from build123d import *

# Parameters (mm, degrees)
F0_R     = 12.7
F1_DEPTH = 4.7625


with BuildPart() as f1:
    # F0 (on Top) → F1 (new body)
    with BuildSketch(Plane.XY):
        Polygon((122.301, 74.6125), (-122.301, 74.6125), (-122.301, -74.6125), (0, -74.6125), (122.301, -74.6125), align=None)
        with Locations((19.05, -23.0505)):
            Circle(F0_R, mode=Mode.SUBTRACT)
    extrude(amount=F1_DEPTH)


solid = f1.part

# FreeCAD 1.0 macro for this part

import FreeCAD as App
import Part
import Sketcher
from FreeCAD import Vector
Q = App.Units.Quantity

doc = App.newDocument("Part")
body = doc.addObject("PartDesign::Body", "Body")

# Sketch on XY plane
sketch1 = body.newObject("Sketcher::SketchObject", "Sketch")
sketch1.AttachmentSupport = (doc.getObject("XY_Plane"), [""])
sketch1.MapMode = "FlatFace"
sketch1.addGeometry([
    Part.LineSegment(Vector(122, 75, 0), Vector(-122, 75, 0)),  # 0
    Part.LineSegment(Vector(-122, 75, 0), Vector(-122, -75, 0)),  # 1
    Part.LineSegment(Vector(-122, -75, 0), Vector(122, -75, 0)),  # 2
    Part.LineSegment(Vector(122, -75, 0), Vector(122, 75, 0)),  # 3
    Part.Circle(Vector(19, -23, 0), Vector(0, 0, 1), 13),  # 4
], False)
sketch1.addConstraint([
    Sketcher.Constraint("Coincident", 0, 2, 1, 1),
    Sketcher.Constraint("Coincident", 1, 2, 2, 1),
    Sketcher.Constraint("Coincident", 2, 2, 3, 1),
    Sketcher.Constraint("Coincident", 3, 2, 0, 1),
    Sketcher.Constraint("Horizontal", 0),
    Sketcher.Constraint("Vertical", 1),
    Sketcher.Constraint("Horizontal", 2),
    Sketcher.Constraint("Vertical", 3),
    Sketcher.Constraint("Symmetric", 0, 2, 2, 2, -1, 1),
    Sketcher.Constraint("Diameter", 4, Q("1 in")),
    Sketcher.Constraint("DistanceX", 0, 2, 0, 1, Q("9.63 in")),
    Sketcher.Constraint("DistanceY", 1, 2, 1, 1, Q("5.875 in")),
    Sketcher.Constraint("DistanceX", -1, 1, 4, 3, Q("0.75 in")),
    Sketcher.Constraint("DistanceY", 1, 2, 4, 3, Q("2.03 in")),
])
pad1 = body.newObject("PartDesign::Pad", "Pad")
pad1.Profile = sketch1
pad1.Length = Q("0.1875 in")

doc.recompute()
